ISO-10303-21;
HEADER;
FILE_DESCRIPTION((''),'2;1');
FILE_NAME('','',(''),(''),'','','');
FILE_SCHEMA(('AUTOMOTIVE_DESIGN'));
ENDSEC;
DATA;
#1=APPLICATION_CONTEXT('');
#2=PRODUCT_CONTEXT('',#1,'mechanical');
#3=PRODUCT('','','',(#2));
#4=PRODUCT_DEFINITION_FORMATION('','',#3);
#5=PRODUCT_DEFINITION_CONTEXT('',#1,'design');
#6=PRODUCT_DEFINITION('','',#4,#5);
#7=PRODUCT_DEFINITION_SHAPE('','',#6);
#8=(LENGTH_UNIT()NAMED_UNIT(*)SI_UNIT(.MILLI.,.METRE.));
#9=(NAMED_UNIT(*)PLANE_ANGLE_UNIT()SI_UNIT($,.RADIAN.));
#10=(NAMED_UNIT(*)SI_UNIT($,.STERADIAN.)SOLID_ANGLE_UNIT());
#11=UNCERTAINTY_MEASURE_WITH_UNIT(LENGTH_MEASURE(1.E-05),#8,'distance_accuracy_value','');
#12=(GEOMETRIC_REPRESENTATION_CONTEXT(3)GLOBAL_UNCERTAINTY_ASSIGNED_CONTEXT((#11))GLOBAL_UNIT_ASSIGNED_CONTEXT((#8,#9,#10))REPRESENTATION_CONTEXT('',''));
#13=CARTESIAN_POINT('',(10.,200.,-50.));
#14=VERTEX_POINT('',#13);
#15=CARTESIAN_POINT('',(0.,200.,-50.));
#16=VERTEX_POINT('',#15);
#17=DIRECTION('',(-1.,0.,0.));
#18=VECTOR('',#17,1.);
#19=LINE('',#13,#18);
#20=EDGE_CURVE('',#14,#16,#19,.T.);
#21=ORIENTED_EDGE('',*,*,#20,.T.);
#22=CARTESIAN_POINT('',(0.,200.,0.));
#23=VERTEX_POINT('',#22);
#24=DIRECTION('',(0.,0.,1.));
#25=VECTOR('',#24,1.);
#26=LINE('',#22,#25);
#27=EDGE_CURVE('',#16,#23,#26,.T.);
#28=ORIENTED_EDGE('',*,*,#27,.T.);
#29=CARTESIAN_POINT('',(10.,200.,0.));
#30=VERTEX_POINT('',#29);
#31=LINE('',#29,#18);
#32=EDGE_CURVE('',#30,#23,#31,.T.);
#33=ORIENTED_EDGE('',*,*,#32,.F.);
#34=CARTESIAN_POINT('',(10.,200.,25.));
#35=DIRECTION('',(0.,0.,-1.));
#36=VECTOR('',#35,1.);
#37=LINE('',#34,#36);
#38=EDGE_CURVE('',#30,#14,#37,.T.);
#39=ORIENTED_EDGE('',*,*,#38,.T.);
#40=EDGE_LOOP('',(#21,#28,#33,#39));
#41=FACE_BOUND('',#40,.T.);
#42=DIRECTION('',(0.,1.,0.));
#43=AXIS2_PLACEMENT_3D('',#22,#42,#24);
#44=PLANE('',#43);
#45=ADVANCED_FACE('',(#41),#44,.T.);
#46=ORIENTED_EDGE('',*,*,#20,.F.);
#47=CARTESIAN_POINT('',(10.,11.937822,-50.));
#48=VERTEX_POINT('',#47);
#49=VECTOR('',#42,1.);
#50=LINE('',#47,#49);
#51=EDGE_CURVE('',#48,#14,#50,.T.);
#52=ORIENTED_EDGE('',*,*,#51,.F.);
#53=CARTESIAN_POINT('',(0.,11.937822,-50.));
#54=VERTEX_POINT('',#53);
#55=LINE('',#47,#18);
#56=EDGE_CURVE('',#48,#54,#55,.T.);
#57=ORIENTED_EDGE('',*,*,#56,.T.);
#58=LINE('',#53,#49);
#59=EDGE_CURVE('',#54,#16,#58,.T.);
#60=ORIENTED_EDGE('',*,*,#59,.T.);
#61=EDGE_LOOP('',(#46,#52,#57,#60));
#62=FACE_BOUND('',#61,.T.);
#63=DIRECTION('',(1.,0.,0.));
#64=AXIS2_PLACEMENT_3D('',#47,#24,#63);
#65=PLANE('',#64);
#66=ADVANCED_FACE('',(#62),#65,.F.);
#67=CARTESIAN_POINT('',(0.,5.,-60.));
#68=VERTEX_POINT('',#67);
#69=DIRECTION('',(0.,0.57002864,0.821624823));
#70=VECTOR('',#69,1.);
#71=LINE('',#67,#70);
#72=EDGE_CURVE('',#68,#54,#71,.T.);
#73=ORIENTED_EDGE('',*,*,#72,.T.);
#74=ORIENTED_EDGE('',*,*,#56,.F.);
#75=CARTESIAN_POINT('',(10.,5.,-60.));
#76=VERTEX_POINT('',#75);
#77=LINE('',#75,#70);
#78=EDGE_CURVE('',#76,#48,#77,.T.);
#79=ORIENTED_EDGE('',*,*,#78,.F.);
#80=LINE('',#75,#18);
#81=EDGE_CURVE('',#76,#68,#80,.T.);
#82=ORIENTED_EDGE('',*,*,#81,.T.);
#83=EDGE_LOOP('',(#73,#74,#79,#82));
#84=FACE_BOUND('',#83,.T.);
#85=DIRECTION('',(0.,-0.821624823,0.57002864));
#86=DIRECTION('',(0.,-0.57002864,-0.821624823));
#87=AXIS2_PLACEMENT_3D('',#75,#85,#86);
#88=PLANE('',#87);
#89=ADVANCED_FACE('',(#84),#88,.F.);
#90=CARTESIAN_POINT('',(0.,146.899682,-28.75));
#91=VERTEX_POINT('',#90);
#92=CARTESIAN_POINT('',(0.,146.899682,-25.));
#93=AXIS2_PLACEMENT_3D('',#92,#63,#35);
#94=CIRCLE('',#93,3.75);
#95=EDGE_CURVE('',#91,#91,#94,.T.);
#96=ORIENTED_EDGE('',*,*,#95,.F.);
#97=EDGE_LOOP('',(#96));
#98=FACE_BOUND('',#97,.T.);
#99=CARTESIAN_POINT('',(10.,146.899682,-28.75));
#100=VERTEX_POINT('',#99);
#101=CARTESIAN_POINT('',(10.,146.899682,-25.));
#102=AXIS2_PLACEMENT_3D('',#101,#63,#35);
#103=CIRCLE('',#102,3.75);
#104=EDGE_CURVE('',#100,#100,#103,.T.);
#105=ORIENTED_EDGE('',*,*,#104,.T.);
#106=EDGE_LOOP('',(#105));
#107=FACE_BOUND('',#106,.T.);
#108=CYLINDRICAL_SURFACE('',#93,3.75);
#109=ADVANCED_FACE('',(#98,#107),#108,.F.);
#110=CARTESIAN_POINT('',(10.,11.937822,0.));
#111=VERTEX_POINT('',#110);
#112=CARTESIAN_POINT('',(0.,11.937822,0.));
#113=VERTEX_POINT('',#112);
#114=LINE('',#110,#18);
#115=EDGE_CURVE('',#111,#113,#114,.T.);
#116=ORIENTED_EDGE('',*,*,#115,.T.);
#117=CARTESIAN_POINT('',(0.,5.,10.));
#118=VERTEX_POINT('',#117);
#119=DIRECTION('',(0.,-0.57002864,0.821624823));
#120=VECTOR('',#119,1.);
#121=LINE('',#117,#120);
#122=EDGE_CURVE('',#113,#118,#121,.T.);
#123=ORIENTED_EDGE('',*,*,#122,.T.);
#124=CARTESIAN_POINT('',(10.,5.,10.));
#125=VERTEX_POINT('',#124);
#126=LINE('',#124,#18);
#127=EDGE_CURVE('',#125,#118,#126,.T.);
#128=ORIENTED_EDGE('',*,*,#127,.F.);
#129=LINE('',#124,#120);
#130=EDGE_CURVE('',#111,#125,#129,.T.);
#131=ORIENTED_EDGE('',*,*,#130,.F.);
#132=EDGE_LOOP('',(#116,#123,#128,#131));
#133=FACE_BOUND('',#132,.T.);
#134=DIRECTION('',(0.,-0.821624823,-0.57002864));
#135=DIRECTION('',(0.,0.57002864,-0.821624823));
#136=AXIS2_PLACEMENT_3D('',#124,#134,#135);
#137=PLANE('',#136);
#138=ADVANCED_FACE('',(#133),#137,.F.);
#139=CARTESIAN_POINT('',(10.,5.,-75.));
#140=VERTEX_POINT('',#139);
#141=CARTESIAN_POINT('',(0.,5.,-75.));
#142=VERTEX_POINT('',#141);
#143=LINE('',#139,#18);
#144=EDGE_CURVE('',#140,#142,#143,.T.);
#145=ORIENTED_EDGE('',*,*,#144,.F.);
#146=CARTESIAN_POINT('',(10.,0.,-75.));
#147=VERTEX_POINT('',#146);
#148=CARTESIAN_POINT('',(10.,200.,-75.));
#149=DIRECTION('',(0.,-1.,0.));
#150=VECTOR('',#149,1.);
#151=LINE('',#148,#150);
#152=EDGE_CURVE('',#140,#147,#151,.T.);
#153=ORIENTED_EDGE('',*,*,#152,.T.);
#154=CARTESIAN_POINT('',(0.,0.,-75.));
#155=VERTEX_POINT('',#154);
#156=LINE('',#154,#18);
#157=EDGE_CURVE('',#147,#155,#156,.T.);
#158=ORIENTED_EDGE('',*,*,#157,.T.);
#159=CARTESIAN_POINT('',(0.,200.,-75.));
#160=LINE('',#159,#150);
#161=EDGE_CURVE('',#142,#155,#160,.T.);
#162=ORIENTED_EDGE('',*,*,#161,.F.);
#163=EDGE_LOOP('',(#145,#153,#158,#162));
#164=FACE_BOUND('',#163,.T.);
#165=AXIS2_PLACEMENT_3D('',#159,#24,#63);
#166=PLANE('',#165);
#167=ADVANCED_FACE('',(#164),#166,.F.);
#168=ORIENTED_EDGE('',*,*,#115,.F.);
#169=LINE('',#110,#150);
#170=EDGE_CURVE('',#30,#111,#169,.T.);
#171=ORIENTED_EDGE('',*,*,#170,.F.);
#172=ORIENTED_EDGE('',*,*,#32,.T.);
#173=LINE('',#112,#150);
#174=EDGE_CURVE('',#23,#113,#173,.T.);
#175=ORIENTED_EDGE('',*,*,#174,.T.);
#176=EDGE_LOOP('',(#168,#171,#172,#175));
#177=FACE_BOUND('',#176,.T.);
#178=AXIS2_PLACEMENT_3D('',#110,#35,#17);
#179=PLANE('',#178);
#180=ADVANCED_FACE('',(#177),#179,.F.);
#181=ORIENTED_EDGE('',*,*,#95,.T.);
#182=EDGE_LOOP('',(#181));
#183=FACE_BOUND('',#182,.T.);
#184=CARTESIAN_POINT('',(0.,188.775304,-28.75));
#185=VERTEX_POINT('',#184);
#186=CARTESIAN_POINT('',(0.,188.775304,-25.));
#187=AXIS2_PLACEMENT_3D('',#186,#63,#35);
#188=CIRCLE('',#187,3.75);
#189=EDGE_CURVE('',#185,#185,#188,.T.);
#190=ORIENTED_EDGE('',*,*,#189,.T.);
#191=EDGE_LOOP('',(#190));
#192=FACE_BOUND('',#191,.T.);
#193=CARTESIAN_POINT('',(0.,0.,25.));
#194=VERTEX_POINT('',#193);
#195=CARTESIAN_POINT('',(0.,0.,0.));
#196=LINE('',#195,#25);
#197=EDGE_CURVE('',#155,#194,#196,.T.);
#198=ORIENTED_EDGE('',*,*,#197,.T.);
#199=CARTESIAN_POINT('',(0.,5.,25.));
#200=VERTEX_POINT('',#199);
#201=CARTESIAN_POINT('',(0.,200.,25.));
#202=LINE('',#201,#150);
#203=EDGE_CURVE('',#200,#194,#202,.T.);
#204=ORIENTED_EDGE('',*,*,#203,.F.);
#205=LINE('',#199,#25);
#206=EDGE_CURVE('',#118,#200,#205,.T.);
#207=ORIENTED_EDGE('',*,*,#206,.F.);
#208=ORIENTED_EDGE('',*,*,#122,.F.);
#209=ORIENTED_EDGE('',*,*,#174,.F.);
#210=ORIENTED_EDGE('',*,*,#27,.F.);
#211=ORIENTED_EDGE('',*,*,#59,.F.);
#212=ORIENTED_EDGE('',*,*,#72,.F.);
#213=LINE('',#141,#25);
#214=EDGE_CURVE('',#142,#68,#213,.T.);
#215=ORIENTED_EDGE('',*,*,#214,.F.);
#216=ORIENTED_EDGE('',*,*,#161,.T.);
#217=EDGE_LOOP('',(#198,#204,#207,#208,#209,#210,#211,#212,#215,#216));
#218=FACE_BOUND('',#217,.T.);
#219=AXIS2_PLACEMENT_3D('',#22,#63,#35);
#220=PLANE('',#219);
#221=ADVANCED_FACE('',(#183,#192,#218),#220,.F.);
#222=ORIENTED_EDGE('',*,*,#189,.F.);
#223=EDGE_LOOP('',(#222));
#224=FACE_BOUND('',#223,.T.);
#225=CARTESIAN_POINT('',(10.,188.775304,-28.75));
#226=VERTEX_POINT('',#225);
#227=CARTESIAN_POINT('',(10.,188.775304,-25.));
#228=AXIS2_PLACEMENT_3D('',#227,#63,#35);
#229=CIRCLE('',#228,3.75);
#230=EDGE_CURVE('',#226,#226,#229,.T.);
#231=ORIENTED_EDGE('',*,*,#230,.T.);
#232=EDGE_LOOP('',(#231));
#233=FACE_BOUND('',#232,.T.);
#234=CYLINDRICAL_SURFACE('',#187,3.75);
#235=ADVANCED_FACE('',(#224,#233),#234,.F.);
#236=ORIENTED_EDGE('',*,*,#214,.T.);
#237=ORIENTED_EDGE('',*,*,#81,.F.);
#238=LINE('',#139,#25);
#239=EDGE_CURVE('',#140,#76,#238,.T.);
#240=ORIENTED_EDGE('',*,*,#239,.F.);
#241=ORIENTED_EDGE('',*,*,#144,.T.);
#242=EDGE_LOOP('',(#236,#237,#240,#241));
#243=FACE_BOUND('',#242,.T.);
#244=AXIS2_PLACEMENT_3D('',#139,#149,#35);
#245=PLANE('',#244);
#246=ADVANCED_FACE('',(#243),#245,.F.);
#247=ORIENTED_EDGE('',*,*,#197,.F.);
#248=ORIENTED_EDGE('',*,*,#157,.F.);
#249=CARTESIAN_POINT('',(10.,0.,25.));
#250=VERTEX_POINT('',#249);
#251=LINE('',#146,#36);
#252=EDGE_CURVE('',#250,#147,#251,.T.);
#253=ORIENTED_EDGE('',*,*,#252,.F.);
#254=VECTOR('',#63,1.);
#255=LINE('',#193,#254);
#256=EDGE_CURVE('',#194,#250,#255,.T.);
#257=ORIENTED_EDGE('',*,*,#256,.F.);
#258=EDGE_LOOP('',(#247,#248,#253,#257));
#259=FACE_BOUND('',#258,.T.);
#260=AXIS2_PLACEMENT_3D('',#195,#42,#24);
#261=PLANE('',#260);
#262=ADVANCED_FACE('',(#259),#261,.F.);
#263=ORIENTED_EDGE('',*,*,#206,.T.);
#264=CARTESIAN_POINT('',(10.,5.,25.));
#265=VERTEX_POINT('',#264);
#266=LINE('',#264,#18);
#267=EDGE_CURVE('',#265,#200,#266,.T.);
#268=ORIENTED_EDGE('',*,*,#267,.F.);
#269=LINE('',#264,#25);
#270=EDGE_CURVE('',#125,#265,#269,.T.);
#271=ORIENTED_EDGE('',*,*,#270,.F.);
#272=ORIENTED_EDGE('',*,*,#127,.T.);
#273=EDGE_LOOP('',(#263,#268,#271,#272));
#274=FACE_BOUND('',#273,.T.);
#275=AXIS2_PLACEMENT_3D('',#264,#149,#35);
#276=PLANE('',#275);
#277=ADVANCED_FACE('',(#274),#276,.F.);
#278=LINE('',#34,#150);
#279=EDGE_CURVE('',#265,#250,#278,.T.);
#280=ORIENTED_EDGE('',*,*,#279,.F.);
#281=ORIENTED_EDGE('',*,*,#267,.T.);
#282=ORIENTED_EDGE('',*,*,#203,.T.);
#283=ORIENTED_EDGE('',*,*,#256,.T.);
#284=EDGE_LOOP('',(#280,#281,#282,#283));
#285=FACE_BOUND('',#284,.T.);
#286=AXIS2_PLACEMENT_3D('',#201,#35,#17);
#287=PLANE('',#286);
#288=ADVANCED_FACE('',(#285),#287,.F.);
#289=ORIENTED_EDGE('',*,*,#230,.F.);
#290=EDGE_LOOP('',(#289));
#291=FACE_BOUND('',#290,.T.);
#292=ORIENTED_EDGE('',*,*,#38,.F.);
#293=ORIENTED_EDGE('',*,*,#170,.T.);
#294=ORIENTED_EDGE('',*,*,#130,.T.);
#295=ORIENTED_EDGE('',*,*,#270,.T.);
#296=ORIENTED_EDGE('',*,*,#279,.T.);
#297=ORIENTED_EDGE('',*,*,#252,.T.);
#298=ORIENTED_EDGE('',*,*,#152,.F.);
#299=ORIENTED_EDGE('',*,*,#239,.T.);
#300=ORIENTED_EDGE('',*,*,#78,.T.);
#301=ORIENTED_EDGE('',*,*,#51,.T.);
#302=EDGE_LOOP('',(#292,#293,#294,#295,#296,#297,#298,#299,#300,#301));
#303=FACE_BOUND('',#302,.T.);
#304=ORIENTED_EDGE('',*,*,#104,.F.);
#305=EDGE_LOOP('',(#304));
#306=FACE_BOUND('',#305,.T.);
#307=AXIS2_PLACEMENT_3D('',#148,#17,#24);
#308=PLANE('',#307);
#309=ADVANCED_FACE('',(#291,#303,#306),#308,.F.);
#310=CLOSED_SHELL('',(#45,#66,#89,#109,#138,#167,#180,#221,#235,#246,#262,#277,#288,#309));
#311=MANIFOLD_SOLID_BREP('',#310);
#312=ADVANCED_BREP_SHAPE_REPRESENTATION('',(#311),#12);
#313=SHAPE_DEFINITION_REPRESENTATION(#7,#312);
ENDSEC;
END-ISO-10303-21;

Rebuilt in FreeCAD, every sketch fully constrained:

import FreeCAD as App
import Part
import Sketcher
from FreeCAD import Vector


def add_polygon(sketch, points):
    """Adds a closed chain of lines whose ends are joined by coincident constraints."""
    first, n = sketch.GeometryCount, len(points)
    for a, b in zip(points, points[1:] + points[:1]):
        sketch.addGeometry(Part.LineSegment(App.Vector(*a, 0), App.Vector(*b, 0)), False)
    for i in range(n):
        sketch.addConstraint(Sketcher.Constraint("Coincident", first + i, 2, first + (i + 1) % n, 1))

doc = App.newDocument("Part")
body = doc.addObject("PartDesign::Body", "Body")

# Sketch on XZ plane
sketch1 = doc.addObject("Sketcher::SketchObject", "Sketch")
body.addObject(sketch1)
sketch1.AttachmentSupport = (doc.XZ_Plane, [""])
sketch1.MapMode = "FlatFace"
add_polygon(sketch1, [(10, -75), (0, -75), (0, 25), (10, 25)])  # lines 0-3
sketch1.addConstraint([
    Sketcher.Constraint("Horizontal", 0),
    Sketcher.Constraint("Vertical", 1),
    Sketcher.Constraint("Horizontal", 2),
    Sketcher.Constraint("Vertical", 3),
    Sketcher.Constraint("PointOnObject", 0, 2, -2),
    Sketcher.Constraint("DistanceX", 0, 2, 0, 1, 10.0),
    Sketcher.Constraint("DistanceY", 1, 1, 1, 2, 100.0),
    Sketcher.Constraint("DistanceY", 0, 2, -1, 1, 75.0),
])
pad1 = doc.addObject("PartDesign::Pad", "Pad")
body.addObject(pad1)
pad1.Profile = sketch1
pad1.Length = 200
pad1.Reversed = True

# Sketch on YZ plane
sketch2 = doc.addObject("Sketcher::SketchObject", "Sketch001")
body.addObject(sketch2)
sketch2.AttachmentSupport = (doc.YZ_Plane, [""])
sketch2.MapMode = "FlatFace"
sketch2.AttachmentOffset = App.Placement(Vector(0, 0, 10), App.Rotation())
sketch2.addGeometry([
    Part.Circle(Vector(188.8, -25, 0), Vector(0, 0, 1), 3.8),
    Part.Circle(Vector(146.9, -25, 0), Vector(0, 0, 1), 3.8),
], False)
sketch2.addConstraint([
    Sketcher.Constraint("Equal", 0, 1),
    Sketcher.Constraint("Horizontal", 0, 3, 1, 3),
    Sketcher.Constraint("Diameter", 0, 7.5),
    Sketcher.Constraint("DistanceY", 0, 3, -1, 1, 25.0),
    Sketcher.Constraint("DistanceX", -1, 1, 1, 3, 146.899682),
    Sketcher.Constraint("DistanceX", 1, 3, 0, 3, 41.875622),
])
pocket1 = doc.addObject("PartDesign::Pocket", "Pocket")
body.addObject(pocket1)
pocket1.Profile = sketch2
pocket1.Length = 10

# Sketch on YZ plane
sketch3 = doc.addObject("Sketcher::SketchObject", "Sketch002")
body.addObject(sketch3)
sketch3.AttachmentSupport = (doc.YZ_Plane, [""])
sketch3.MapMode = "FlatFace"
add_polygon(sketch3, [(5, 25), (200, 25), (200, 0), (12, 0), (5, 10)])  # lines 0-4
add_polygon(sketch3, [(5, -75), (5, -60), (12, -50), (200, -50), (200, -75)])  # lines 5-9
sketch3.addConstraint([
    Sketcher.Constraint("Horizontal", 0),
    Sketcher.Constraint("Vertical", 1),
    Sketcher.Constraint("Horizontal", 2),
    Sketcher.Constraint("Vertical", 4),
    Sketcher.Constraint("Vertical", 5),
    Sketcher.Constraint("Horizontal", 7),
    Sketcher.Constraint("Vertical", 8),
    Sketcher.Constraint("Horizontal", 9),
    Sketcher.Constraint("PointOnObject", 1, 2, -1),
    Sketcher.Constraint("Vertical", 4, 2, 5, 2),
    Sketcher.Constraint("Vertical", 2, 2, 6, 2),
    Sketcher.Constraint("Vertical", 1, 2, 7, 2),
    Sketcher.Constraint("Equal", 4, 5),
    Sketcher.Constraint("Equal", 1, 8),
    Sketcher.Constraint("DistanceX", 0, 1, 0, 2, 195.0),
    Sketcher.Constraint("DistanceY", 1, 2, 1, 1, 25.0),
    Sketcher.Constraint("DistanceY", 4, 1, 4, 2, 15.0),
    Sketcher.Constraint("DistanceX", -1, 1, 0, 2, 200.0),
    Sketcher.Constraint("DistanceY", 5, 2, -1, 1, 60.0),
    Sketcher.Constraint("DistanceX", 2, 2, 2, 1, 188.062178),
])
pocket2 = doc.addObject("PartDesign::Pocket", "Pocket001")
body.addObject(pocket2)
pocket2.Profile = sketch3
pocket2.Length = 10
pocket2.Reversed = True

doc.recompute()
